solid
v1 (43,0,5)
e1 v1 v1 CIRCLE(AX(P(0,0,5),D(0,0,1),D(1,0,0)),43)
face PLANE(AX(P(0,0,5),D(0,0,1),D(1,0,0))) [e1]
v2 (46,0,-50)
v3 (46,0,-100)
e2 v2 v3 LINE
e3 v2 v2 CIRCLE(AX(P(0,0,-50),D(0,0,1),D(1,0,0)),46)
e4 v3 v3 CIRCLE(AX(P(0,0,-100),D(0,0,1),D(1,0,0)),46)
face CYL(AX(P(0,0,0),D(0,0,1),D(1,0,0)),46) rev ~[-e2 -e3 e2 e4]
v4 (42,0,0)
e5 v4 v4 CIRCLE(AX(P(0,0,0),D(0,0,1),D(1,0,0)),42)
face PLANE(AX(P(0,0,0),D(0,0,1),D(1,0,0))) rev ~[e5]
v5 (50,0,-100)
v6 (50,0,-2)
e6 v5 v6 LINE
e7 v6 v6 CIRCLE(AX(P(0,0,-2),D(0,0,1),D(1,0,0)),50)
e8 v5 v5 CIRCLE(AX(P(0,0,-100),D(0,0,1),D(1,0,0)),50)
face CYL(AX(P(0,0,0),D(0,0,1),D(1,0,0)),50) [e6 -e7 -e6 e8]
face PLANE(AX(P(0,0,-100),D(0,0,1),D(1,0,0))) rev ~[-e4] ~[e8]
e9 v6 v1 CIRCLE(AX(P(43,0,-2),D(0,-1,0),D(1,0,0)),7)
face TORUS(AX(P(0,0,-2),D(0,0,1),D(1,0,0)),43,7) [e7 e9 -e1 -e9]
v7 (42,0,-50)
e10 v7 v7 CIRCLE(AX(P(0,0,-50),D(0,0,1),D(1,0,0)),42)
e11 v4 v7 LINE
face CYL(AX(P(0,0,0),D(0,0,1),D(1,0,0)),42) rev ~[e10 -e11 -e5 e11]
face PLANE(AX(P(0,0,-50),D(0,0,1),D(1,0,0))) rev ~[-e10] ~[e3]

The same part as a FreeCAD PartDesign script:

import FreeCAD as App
import Part
import Sketcher


def edges_at(feature, points):
    """Names of the edges that pass closest to the given points."""
    edges = feature.Shape.Edges
    near = lambda p: min(range(len(edges)), key=lambda i: edges[i].distToShape(Part.Vertex(*p))[0])
    return sorted({f"Edge{near(p) + 1}" for p in points})

doc = App.newDocument("Part")
body = doc.addObject("PartDesign::Body", "Body")

sketch1 = body.newObject("Sketcher::SketchObject", "Sketch")
sketch1.AttachmentSupport = (doc.getObject("XY_Plane"), [""])
sketch1.MapMode = "FlatFace"
sketch1.addGeometry(Part.Circle(App.Vector(0, 0, 0), App.Vector(0, 0, 1), 50), False)
sketch1.addConstraint([
    Sketcher.Constraint("Coincident", 0, 3, -1, 1),
    Sketcher.Constraint("Diameter", 0, 100.0),
])
pad1 = body.newObject("PartDesign::Pad", "Pad")
pad1.Profile = sketch1
pad1.Length = 5

sketch2 = body.newObject("Sketcher::SketchObject", "Sketch001")
sketch2.AttachmentSupport = (doc.getObject("XY_Plane"), [""])
sketch2.MapMode = "FlatFace"
sketch2.addGeometry([
    Part.Circle(App.Vector(0, 0, 0), App.Vector(0, 0, 1), 46),
    Part.Circle(App.Vector(0, 0, 0), App.Vector(0, 0, 1), 42),
], False)
sketch2.addConstraint([
    Sketcher.Constraint("Coincident", 0, 3, -1, 1),
    Sketcher.Constraint("Coincident", 1, 3, -1, 1),
    Sketcher.Constraint("Diameter", 0, 92.0),
    Sketcher.Constraint("Diameter", 1, 84.0),
])
pad2 = body.newObject("PartDesign::Pad", "Pad001")
pad2.Profile = sketch2
pad2.Length = 50
pad2.Reversed = True

sketch3 = body.newObject("Sketcher::SketchObject", "Sketch002")
sketch3.AttachmentSupport = (doc.getObject("XY_Plane"), [""])
sketch3.MapMode = "FlatFace"
sketch3.addGeometry([
    Part.Circle(App.Vector(0, 0, 0), App.Vector(0, 0, 1), 50),
    Part.Circle(App.Vector(0, 0, 0), App.Vector(0, 0, 1), 46),
], False)
sketch3.addConstraint([
    Sketcher.Constraint("Coincident", 0, 3, -1, 1),
    Sketcher.Constraint("Coincident", 1, 3, -1, 1),
    Sketcher.Constraint("Diameter", 0, 100.0),
    Sketcher.Constraint("Diameter", 1, 92.0),
])
pad3 = body.newObject("PartDesign::Pad", "Pad002")
pad3.Profile = sketch3
pad3.Length = 100
pad3.Reversed = True
doc.recompute()

fillet = body.newObject("PartDesign::Fillet", "Fillet")
fillet.Base = (pad3, edges_at(pad3, [(-50, 0, 5)]))
fillet.Radius = 7

doc.recompute()
